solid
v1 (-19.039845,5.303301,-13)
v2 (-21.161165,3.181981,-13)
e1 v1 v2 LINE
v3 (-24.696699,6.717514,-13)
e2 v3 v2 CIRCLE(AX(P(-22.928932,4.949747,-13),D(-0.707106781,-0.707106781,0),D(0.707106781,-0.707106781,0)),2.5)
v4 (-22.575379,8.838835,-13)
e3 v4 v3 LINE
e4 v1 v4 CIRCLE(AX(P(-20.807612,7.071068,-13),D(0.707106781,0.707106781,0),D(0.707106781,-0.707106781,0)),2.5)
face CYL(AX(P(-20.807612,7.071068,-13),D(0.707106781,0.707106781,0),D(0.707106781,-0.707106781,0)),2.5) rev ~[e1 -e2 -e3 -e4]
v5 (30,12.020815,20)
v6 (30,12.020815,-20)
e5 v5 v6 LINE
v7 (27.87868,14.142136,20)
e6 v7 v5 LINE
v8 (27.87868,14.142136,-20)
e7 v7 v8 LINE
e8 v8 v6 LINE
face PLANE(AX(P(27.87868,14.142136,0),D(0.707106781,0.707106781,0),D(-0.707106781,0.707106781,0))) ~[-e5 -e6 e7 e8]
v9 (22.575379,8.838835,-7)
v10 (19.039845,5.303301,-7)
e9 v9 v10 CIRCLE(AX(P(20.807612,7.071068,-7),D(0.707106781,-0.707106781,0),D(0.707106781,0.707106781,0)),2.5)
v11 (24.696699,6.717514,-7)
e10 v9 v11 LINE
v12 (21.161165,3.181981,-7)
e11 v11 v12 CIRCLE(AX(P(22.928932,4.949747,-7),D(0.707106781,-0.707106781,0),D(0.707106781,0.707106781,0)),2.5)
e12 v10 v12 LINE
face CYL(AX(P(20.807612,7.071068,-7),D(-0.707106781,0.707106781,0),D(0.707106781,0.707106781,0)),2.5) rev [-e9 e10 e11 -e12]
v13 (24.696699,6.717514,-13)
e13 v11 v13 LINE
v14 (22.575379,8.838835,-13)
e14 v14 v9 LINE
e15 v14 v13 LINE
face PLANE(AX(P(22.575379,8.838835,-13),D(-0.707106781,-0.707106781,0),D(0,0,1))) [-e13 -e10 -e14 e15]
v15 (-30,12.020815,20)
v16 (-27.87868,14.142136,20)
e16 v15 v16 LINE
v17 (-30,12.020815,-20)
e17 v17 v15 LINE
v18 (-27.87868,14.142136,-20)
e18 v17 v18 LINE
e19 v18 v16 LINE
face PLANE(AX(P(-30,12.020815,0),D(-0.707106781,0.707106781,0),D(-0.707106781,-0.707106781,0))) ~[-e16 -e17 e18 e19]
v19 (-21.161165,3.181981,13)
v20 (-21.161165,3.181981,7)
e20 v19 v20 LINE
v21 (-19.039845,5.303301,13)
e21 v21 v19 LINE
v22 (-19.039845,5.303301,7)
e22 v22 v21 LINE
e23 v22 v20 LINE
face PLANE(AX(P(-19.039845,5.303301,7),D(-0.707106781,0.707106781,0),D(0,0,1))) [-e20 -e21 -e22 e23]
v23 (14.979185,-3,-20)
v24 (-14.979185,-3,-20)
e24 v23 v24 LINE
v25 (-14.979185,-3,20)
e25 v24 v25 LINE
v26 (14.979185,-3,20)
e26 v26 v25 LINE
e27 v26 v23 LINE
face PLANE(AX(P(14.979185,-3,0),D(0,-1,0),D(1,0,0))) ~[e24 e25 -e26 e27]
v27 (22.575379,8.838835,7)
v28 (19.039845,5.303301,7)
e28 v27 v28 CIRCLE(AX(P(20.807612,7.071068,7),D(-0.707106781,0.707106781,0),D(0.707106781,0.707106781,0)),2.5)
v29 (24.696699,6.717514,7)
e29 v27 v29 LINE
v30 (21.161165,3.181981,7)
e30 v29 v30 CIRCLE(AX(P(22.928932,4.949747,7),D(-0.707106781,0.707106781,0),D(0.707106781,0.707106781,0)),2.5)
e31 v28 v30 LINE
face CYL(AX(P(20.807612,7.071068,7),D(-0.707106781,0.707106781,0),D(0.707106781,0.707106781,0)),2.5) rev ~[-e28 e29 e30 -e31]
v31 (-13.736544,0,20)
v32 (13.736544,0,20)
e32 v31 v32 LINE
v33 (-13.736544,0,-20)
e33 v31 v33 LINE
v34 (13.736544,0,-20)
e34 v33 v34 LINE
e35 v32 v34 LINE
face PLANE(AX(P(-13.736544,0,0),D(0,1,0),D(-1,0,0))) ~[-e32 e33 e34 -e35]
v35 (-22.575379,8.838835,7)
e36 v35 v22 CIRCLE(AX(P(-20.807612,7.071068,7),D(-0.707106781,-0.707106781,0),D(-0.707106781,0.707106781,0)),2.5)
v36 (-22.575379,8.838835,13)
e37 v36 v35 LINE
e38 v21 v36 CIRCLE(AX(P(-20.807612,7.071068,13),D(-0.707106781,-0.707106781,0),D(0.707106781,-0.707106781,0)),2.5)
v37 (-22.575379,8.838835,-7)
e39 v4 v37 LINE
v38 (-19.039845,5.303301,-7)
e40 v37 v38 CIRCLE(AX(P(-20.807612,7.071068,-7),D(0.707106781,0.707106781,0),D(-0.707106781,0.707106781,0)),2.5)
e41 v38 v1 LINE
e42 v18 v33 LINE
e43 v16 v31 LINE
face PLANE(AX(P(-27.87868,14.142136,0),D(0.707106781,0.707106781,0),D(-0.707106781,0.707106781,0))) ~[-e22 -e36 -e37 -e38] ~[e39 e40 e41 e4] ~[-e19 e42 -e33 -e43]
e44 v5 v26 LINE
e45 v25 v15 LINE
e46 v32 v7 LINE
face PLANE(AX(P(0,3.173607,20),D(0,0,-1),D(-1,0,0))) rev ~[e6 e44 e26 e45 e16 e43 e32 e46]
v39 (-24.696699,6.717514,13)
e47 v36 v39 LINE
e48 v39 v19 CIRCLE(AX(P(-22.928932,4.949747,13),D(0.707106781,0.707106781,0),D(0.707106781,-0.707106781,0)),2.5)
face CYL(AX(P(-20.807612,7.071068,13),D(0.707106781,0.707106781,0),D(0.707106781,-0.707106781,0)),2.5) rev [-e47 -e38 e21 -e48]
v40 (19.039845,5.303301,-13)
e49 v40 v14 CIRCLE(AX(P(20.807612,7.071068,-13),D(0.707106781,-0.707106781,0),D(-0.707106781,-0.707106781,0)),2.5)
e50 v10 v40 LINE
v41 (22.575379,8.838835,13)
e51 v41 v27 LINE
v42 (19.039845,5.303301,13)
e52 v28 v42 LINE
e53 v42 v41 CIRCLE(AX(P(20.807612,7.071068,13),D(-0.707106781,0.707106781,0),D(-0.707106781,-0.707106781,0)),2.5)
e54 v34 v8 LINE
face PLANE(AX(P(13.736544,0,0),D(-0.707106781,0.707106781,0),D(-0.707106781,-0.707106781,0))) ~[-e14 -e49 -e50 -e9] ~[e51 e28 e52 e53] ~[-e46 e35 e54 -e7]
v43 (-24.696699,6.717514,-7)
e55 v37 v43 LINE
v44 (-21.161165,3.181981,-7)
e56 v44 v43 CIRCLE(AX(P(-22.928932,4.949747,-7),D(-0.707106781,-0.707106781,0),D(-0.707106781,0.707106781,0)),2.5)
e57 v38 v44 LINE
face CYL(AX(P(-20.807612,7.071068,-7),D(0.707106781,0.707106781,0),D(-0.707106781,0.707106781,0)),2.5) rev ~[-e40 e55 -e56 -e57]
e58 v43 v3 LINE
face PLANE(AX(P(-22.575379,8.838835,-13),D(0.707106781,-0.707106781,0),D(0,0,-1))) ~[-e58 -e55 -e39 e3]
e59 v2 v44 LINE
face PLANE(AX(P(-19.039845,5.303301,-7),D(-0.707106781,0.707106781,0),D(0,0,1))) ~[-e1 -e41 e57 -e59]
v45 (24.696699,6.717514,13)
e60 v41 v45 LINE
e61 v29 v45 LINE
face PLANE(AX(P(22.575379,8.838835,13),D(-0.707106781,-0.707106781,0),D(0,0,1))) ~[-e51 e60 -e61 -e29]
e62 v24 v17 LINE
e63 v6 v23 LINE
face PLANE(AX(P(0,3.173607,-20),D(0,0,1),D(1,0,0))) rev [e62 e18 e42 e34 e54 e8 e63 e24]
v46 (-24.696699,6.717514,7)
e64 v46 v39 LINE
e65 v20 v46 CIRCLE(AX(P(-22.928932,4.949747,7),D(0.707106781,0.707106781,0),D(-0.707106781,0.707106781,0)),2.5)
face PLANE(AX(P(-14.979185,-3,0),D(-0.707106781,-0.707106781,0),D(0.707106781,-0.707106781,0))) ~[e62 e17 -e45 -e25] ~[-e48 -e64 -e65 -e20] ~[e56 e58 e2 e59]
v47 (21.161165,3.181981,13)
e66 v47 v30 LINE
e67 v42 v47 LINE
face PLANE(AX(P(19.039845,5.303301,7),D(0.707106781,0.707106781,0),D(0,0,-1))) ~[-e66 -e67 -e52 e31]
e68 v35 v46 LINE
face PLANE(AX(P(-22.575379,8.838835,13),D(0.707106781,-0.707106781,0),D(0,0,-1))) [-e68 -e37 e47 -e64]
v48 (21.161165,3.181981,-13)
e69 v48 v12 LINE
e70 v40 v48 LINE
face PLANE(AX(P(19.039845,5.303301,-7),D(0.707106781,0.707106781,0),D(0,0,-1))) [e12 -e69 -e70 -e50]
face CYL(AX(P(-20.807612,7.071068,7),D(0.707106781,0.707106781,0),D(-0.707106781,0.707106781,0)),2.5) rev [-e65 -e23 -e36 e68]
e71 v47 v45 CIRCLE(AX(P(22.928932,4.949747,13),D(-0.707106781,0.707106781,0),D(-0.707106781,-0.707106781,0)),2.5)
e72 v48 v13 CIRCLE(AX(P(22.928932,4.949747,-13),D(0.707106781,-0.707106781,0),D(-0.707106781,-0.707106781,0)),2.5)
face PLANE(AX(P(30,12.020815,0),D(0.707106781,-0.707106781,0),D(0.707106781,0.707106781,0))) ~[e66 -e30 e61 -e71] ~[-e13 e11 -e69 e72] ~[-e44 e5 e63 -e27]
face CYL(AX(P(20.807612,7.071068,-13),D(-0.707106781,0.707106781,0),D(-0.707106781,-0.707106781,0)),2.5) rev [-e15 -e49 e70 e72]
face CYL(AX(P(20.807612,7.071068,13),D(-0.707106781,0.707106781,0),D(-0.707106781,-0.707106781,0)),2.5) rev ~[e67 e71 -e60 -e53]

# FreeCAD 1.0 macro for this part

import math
import FreeCAD as App
import Part
import Sketcher

V = App.Vector
Q = App.Units.Quantity

doc = App.newDocument("Part")
body = doc.addObject("PartDesign::Body", "Body")

# Sketch on XY plane
sketch1 = body.newObject("Sketcher::SketchObject", "Sketch")
sketch1.AttachmentSupport = (doc.getObject("XY_Plane"), [""])
sketch1.MapMode = "FlatFace"
sketch1.addGeometry([
    Part.LineSegment(V(-13.736544, 0, 0), V(-27.87868, 14.142136, 0)),  # 0
    Part.LineSegment(V(-27.87868, 14.142136, 0), V(-30, 12.020815, 0)),  # 1
    Part.LineSegment(V(-30, 12.020815, 0), V(-14.979185, -3, 0)),  # 2
    Part.LineSegment(V(-14.979185, -3, 0), V(14.979185, -3, 0)),  # 3
    Part.LineSegment(V(14.979185, -3, 0), V(30, 12.020815, 0)),  # 4
    Part.LineSegment(V(30, 12.020815, 0), V(27.87868, 14.142136, 0)),  # 5
    Part.LineSegment(V(27.87868, 14.142136, 0), V(13.736544, 0, 0)),  # 6
    Part.LineSegment(V(13.736544, 0, 0), V(-13.736544, 0, 0)),  # 7
], False)
sketch1.addConstraint([
    Sketcher.Constraint("Coincident", 0, 2, 1, 1),
    Sketcher.Constraint("Coincident", 1, 2, 2, 1),
    Sketcher.Constraint("Coincident", 2, 2, 3, 1),
    Sketcher.Constraint("Coincident", 3, 2, 4, 1),
    Sketcher.Constraint("Coincident", 4, 2, 5, 1),
    Sketcher.Constraint("Coincident", 5, 2, 6, 1),
    Sketcher.Constraint("Coincident", 6, 2, 7, 1),
    Sketcher.Constraint("Coincident", 7, 2, 0, 1),
    Sketcher.Constraint("Horizontal", 3),
    Sketcher.Constraint("Horizontal", 7),
    Sketcher.Constraint("Symmetric", 6, 2, 7, 2, -1, 1),
    Sketcher.Constraint("Symmetric", 1, 2, 4, 2, -2),
    Sketcher.Constraint("Symmetric", 0, 2, 5, 2, -2),
    Sketcher.Constraint("Perpendicular", 0, 1),
    Sketcher.Constraint("Perpendicular", 1, 2),
    Sketcher.Constraint("Perpendicular", 2, 4),
    Sketcher.Constraint("Perpendicular", 4, 5),
    Sketcher.Constraint("Distance", 0, Q("20 mm")),
    Sketcher.Constraint("Distance", 1, Q("3 mm")),
    Sketcher.Constraint("DistanceX", 1, 2, -1, 1, Q("30 mm")),
    Sketcher.Constraint("DistanceY", 2, 2, -1, 1, Q("3 mm")),
])
pad1 = body.newObject("PartDesign::Pad", "Pad")
pad1.Profile = sketch1
pad1.Length = 20

# Sketch on an angled plane
sketch2 = body.newObject("Sketcher::SketchObject", "Sketch001")
sketch2.Placement = App.Placement(V(-6.868272, -6.868272, 0), App.Rotation(V(0, 0, -1), V(-0.707106781, 0.707106781, 0), V(0.707106781, 0.707106781, 0), "ZXY"))
sketch2.addGeometry([
    Part.LineSegment(V(-13, 17.213203, 0), V(-7, 17.213203, 0)),
    Part.ArcOfCircle(Part.Circle(V(-7, 19.713203, 0), V(0, 0, 1), 2.5), math.radians(-90), math.radians(90)),
    Part.LineSegment(V(-7, 22.213203, 0), V(-13, 22.213203, 0)),
    Part.ArcOfCircle(Part.Circle(V(-13, 19.713203, 0), V(0, 0, 1), 2.5), math.radians(90), math.radians(270)),
], False)
sketch2.addConstraint([
    Sketcher.Constraint("Tangent", 0, 2, 1, 1),
    Sketcher.Constraint("Tangent", 1, 2, 2, 1),
    Sketcher.Constraint("Tangent", 2, 2, 3, 1),
    Sketcher.Constraint("Tangent", 3, 2, 0, 1),
    Sketcher.Constraint("Horizontal", 0),
    Sketcher.Constraint("Horizontal", 2),
    Sketcher.Constraint("Radius", 1, Q("2.5 mm")),
    Sketcher.Constraint("DistanceX", 0, 1, 0, 2, Q("6 mm")),
    Sketcher.Constraint("DistanceX", 1, 3, -1, 1, Q("7 mm")),
    Sketcher.Constraint("DistanceY", -1, 1, 1, 3, Q("19.713203 mm")),
])
pocket1 = body.newObject("PartDesign::Pocket", "Pocket")
pocket1.Profile = sketch2
pocket1.Type = "ThroughAll"
doc.recompute()

mirrored = body.newObject("PartDesign::Mirrored", "Mirrored")
mirrored.Originals = [pocket1]
mirrored.MirrorPlane = (doc.getObject("YZ_Plane"), [""])
body.Tip = mirrored
body2 = doc.addObject("PartDesign::Body", "Body001")
doc.recompute()

body2.BaseFeature = body
doc.recompute()

mirroring = doc.addObject("Part::Mirroring", "Mirroring")
mirroring.Source = body
mirroring.Base = V(0, 0, 0)
mirroring.Normal = V(0, 0, -1)
body3 = doc.addObject("PartDesign::Body", "Body002")
body3.BaseFeature = mirroring
boolean = body2.newObject("PartDesign::Boolean", "Boolean")
boolean.Type = "Fuse"
boolean.addObjects([body3])
doc.recompute()
mirroring.Visibility = False

doc.recompute()
